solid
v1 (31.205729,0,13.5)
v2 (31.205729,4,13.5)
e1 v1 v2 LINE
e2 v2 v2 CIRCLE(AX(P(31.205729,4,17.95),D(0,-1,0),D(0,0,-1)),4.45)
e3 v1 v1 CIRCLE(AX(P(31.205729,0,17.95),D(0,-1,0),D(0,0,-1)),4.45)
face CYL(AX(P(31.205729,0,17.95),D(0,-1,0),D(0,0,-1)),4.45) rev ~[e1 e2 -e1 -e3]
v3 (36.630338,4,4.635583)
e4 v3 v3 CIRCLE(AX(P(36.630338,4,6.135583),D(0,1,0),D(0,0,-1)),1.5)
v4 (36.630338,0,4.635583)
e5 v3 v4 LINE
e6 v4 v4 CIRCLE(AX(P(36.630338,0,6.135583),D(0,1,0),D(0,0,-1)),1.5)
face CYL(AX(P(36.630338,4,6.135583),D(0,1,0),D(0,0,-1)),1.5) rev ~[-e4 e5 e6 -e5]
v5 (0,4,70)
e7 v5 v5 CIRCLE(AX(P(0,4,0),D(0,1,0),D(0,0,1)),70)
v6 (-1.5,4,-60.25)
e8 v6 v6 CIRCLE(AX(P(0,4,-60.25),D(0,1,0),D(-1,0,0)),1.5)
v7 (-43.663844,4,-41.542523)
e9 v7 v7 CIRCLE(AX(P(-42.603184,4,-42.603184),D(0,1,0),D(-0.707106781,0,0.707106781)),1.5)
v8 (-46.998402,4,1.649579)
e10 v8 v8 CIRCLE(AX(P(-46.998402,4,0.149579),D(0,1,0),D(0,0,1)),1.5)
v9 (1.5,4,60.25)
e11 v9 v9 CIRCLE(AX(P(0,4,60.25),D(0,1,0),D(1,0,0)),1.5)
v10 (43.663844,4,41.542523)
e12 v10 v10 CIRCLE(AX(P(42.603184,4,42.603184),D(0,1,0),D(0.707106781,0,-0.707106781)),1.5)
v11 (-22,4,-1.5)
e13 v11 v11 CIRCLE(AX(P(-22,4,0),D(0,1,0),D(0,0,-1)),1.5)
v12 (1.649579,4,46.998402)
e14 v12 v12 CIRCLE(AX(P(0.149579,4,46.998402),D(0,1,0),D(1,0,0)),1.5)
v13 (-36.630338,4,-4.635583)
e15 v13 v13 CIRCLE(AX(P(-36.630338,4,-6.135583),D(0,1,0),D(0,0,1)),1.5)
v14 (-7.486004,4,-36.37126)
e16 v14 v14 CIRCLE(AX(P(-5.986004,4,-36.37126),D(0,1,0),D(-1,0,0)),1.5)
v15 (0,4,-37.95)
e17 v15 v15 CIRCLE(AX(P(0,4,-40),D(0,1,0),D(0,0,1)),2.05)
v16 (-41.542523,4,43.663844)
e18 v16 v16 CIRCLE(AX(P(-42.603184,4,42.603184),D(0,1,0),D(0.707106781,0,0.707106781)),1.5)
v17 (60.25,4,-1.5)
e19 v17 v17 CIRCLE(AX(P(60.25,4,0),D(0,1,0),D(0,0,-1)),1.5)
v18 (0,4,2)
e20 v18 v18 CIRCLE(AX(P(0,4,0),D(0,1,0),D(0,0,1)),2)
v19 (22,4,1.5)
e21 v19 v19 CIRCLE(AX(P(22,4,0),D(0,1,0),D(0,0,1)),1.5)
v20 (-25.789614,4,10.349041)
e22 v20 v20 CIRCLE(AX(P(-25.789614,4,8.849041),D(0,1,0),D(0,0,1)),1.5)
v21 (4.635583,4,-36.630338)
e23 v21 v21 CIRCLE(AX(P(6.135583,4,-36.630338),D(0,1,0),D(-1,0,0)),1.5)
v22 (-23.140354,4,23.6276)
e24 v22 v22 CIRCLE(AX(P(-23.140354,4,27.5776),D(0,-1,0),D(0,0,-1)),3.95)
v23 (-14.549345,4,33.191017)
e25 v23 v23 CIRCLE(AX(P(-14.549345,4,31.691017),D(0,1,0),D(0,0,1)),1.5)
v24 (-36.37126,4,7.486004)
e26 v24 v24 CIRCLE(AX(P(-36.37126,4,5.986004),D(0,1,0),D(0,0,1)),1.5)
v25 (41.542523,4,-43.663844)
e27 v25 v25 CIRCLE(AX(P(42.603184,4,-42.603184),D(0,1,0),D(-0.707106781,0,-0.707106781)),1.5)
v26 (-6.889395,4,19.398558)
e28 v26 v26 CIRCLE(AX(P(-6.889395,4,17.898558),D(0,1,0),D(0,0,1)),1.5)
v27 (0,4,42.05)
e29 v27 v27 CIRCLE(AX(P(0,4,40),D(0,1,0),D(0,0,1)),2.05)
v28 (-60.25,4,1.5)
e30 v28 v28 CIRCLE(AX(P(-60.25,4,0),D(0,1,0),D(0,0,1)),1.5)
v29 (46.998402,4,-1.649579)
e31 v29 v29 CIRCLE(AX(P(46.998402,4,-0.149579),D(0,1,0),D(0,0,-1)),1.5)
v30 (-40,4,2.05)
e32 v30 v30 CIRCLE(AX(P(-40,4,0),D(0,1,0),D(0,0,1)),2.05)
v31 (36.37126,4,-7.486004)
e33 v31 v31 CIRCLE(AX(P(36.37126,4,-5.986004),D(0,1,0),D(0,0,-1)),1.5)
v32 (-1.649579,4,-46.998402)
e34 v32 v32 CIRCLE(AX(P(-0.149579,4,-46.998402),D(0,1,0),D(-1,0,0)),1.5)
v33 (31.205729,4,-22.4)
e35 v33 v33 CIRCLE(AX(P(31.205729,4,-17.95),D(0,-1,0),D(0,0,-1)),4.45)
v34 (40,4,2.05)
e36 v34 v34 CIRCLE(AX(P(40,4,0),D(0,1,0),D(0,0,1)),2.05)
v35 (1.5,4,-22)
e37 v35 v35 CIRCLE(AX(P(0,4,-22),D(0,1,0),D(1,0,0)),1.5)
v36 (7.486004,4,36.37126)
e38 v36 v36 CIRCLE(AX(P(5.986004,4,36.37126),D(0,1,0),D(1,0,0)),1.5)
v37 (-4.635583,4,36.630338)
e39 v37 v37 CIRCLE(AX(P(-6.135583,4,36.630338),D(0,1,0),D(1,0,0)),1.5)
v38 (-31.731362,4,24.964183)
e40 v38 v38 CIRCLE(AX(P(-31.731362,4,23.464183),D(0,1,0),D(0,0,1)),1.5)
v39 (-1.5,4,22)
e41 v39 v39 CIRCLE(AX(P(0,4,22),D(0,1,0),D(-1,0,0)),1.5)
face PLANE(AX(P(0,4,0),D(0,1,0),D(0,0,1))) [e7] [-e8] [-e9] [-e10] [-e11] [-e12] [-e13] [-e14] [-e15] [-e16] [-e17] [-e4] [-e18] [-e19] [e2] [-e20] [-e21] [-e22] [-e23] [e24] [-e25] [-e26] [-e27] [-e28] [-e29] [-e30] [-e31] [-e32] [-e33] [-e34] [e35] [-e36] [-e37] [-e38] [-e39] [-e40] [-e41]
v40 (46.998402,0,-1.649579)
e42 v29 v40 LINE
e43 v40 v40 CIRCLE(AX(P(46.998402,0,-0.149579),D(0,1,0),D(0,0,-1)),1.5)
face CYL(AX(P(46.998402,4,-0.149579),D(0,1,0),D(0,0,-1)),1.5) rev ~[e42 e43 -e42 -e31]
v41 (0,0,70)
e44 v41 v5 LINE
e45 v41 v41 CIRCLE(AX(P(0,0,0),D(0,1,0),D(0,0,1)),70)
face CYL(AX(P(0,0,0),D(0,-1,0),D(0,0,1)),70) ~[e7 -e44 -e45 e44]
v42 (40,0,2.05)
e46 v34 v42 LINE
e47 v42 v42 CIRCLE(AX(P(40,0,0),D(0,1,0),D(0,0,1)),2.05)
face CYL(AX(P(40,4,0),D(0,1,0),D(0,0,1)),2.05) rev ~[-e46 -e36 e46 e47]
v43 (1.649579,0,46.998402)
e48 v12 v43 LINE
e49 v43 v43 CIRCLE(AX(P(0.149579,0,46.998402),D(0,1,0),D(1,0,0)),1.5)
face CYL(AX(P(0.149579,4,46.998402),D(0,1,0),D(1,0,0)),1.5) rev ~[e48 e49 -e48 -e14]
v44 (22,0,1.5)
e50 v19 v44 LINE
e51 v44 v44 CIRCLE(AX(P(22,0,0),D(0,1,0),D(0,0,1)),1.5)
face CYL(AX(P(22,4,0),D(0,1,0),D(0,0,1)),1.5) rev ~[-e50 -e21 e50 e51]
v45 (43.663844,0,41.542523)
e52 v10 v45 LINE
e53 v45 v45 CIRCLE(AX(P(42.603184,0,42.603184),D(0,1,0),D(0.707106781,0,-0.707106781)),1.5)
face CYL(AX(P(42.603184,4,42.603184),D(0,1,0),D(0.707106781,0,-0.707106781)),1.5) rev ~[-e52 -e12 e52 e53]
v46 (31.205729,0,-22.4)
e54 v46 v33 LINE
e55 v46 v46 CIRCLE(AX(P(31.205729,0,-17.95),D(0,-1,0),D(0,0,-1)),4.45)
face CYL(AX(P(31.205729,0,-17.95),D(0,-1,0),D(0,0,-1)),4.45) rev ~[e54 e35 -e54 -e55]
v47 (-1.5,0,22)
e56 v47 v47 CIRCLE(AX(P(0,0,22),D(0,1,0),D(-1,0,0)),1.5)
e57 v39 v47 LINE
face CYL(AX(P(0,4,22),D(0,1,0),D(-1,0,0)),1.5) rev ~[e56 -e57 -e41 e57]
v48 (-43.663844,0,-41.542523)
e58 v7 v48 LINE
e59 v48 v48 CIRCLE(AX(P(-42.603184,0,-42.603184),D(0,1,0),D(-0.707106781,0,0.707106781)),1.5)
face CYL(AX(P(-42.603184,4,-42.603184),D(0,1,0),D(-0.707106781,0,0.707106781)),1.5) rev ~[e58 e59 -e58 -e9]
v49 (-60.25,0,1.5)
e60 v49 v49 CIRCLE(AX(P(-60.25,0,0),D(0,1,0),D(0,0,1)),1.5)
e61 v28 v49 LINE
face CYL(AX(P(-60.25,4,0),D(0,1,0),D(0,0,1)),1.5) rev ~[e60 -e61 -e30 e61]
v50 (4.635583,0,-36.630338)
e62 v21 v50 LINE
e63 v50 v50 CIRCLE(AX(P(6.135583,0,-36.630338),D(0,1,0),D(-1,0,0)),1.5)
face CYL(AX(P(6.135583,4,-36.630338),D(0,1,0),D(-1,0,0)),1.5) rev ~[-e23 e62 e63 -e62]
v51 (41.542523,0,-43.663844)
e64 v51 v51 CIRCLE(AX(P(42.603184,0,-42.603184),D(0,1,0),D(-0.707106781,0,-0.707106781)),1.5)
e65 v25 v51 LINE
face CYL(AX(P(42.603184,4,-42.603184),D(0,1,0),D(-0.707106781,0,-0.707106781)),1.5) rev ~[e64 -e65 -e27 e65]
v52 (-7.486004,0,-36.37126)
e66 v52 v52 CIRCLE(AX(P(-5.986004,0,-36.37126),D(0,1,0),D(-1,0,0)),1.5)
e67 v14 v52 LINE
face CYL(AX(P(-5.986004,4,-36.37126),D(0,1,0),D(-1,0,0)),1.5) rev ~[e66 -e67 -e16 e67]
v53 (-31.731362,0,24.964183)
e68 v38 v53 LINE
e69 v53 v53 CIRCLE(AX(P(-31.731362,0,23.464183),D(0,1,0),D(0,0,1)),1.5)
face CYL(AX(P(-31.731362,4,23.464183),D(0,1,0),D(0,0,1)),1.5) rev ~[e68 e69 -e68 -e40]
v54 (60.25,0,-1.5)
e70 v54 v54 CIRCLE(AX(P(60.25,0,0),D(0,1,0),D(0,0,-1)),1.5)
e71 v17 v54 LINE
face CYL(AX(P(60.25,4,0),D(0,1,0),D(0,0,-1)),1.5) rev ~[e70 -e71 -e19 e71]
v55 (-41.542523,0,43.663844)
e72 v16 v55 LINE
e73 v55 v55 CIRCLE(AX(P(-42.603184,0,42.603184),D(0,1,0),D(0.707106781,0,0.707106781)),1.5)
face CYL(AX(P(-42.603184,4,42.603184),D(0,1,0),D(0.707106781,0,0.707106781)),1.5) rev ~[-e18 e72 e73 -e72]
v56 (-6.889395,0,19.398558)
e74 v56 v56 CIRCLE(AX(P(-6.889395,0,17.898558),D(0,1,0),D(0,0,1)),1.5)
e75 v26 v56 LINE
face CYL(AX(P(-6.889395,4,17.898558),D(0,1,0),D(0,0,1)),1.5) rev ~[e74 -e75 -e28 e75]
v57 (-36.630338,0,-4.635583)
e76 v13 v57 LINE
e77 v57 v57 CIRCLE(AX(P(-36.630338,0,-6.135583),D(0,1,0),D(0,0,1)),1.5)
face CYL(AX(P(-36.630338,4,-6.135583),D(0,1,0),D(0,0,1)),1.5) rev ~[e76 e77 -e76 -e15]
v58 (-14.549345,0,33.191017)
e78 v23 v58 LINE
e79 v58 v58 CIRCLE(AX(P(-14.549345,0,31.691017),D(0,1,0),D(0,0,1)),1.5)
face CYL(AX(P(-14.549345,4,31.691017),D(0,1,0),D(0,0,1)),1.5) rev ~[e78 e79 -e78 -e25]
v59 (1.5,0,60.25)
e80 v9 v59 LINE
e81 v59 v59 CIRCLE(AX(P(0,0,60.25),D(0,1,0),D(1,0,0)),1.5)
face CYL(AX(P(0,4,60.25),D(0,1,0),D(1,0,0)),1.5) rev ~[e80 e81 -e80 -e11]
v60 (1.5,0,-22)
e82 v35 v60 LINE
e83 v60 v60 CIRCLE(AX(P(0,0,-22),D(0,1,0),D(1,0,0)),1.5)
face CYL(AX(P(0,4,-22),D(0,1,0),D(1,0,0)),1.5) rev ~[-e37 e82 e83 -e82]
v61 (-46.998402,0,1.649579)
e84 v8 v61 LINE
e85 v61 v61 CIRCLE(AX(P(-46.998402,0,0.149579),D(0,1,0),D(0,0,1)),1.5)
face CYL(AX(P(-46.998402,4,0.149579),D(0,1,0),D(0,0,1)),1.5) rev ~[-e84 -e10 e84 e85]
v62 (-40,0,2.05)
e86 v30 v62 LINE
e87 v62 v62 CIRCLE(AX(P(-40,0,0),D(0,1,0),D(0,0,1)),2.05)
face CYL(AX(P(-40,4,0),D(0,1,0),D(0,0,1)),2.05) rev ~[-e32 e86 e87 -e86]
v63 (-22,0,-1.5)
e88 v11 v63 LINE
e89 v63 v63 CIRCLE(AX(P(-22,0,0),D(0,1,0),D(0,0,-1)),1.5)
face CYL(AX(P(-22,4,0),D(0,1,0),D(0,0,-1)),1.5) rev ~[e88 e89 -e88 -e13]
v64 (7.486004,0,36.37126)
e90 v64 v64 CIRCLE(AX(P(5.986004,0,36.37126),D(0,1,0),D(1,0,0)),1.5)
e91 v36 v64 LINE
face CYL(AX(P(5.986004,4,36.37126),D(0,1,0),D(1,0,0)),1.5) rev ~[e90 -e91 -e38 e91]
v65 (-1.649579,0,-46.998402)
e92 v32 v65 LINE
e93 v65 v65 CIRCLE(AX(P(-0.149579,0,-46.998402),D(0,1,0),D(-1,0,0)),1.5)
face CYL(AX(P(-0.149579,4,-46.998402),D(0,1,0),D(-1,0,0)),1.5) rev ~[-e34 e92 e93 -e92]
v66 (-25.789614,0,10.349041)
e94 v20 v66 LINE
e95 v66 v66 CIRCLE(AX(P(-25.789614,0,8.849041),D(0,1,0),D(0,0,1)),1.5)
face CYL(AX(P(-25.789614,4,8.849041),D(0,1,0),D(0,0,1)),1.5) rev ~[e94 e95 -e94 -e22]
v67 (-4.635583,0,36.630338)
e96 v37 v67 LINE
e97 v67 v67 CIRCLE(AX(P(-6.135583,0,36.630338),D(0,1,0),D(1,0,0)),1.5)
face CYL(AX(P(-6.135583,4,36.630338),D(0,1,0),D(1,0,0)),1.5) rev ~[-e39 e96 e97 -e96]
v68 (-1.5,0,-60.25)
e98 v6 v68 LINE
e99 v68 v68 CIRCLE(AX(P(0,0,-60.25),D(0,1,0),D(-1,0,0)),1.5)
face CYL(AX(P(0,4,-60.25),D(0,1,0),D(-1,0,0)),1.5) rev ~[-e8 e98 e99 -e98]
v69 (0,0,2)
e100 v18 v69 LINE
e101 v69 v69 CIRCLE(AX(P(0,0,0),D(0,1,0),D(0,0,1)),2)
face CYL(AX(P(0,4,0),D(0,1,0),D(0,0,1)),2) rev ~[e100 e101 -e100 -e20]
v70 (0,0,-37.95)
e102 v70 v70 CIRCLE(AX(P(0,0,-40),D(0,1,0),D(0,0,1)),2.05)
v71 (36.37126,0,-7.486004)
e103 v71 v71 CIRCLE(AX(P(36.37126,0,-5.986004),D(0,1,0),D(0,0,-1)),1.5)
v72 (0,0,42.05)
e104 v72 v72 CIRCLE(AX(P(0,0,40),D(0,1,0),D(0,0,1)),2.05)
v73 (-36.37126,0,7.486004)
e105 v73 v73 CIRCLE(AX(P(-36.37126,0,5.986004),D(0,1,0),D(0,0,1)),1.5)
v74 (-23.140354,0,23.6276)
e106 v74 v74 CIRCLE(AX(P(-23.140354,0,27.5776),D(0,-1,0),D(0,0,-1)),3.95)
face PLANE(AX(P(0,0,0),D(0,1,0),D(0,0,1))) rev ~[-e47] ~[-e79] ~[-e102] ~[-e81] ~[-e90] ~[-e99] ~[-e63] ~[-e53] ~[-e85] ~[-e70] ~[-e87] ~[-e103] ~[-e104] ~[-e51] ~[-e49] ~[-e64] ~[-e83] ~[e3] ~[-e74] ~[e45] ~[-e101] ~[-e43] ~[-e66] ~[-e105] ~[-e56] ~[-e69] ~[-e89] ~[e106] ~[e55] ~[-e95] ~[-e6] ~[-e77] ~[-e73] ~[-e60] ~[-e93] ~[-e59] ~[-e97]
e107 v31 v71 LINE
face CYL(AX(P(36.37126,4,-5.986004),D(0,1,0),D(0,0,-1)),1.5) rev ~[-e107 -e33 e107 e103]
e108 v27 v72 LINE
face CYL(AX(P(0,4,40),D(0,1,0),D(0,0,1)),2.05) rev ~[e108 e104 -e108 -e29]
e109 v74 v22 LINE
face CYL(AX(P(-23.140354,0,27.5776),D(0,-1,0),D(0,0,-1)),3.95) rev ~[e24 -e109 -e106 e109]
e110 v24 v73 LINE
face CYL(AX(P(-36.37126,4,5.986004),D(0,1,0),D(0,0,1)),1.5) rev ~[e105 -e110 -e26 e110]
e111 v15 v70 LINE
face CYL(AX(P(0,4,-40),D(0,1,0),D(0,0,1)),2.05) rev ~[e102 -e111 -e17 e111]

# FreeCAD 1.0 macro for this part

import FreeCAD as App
import Part
import Sketcher

V = App.Vector
Q = App.Units.Quantity

doc = App.newDocument("Part")
params = doc.addObject("Spreadsheet::Sheet", "Params")
for row, (alias, value) in enumerate([
    ("sketch1_diameter", "140 mm"),
    ("pad1_length", "4 mm"),
    ("sketch2_diameter", "4 mm"),
    ("sketch3_diameter", "3 mm"),
    ("sketch4_diameter", "4.1 mm"),
    ("sketch5_diameter", "3 mm"),
    ("sketch6_diameter", "3 mm"),
    ("sketch7_diameter", "8.9 mm"),
    ("sketch7_diameter2", "7.9 mm"),
    ("sketch8_diameter", "3 mm"),
], start=1):
    params.set(f"A{row}", alias)
    params.set(f"B{row}", "=" + value)
    params.setAlias(f"B{row}", alias)

body = doc.addObject("PartDesign::Body", "Body")

# Sketch on XZ plane
sketch1 = doc.addObject("Sketcher::SketchObject", "Sketch")
body.addObject(sketch1)
sketch1.AttachmentSupport = (doc.XZ_Plane, [""])
sketch1.MapMode = "FlatFace"
sketch1.addGeometry(Part.Circle(V(0, 0, 0), V(0, 0, 1), 70), False)
sketch1.addConstraint([
    Sketcher.Constraint("Coincident", 0, 3, -1, 1),
    Sketcher.Constraint("Diameter", 0, Q("140 mm")),
])
sketch1.setExpression("Constraints[1]", "Params.sketch1_diameter")
pad1 = doc.addObject("PartDesign::Pad", "Pad")
body.addObject(pad1)
pad1.Profile = sketch1
pad1.setExpression("Length", "Params.pad1_length")
pad1.Reversed = True

# Sketch on XZ plane
sketch2 = doc.addObject("Sketcher::SketchObject", "Sketch001")
body.addObject(sketch2)
sketch2.AttachmentSupport = (doc.XZ_Plane, [""])
sketch2.MapMode = "FlatFace"
sketch2.AttachmentOffset = App.Placement(V(0, 0, -4), App.Rotation())
sketch2.addGeometry(Part.Circle(V(0, 0, 0), V(0, 0, 1), 2), False)
sketch2.addConstraint([
    Sketcher.Constraint("Coincident", 0, 3, -1, 1),
    Sketcher.Constraint("Diameter", 0, Q("4 mm")),
])
sketch2.setExpression("Constraints[1]", "Params.sketch2_diameter")
pocket1 = doc.addObject("PartDesign::Pocket", "Pocket")
body.addObject(pocket1)
pocket1.Profile = sketch2
pocket1.Type = "ThroughAll"
pocket1.Reversed = True

# Sketch on XZ plane
sketch3 = doc.addObject("Sketcher::SketchObject", "Sketch002")
body.addObject(sketch3)
sketch3.AttachmentSupport = (doc.XZ_Plane, [""])
sketch3.MapMode = "FlatFace"
sketch3.AttachmentOffset = App.Placement(V(0, 0, -4), App.Rotation())
sketch3.addGeometry(Part.Circle(V(-60.2, 0, 0), V(0, 0, 1), 1.5), False)
sketch3.addConstraint([
    Sketcher.Constraint("PointOnObject", 0, 3, -1),
    Sketcher.Constraint("Diameter", 0, Q("3 mm")),
    Sketcher.Constraint("DistanceX", 0, 3, -1, 1, Q("60.25 mm")),
])
sketch3.setExpression("Constraints[1]", "Params.sketch3_diameter")
pocket2 = doc.addObject("PartDesign::Pocket", "Pocket001")
body.addObject(pocket2)
pocket2.Profile = sketch3
pocket2.Type = "ThroughAll"
pocket2.Reversed = True
doc.recompute()

polarpattern = doc.addObject("PartDesign::PolarPattern", "PolarPattern")
body.addObject(polarpattern)
polarpattern.Originals = [pocket2]
polarpattern.Axis = (doc.Y_Axis, [""])
polarpattern.Angle = 360
polarpattern.Occurrences = 8
body.Tip = polarpattern

# Sketch on XZ plane
sketch4 = doc.addObject("Sketcher::SketchObject", "Sketch003")
body.addObject(sketch4)
sketch4.AttachmentSupport = (doc.XZ_Plane, [""])
sketch4.MapMode = "FlatFace"
sketch4.AttachmentOffset = App.Placement(V(0, 0, -4), App.Rotation())
sketch4.addGeometry([
    Part.Circle(V(0, -40, 0), V(0, 0, 1), 2),
    Part.Circle(V(-40, 0, 0), V(0, 0, 1), 2),
    Part.Circle(V(40, 0, 0), V(0, 0, 1), 2),
    Part.Circle(V(0, 40, 0), V(0, 0, 1), 2),
], False)
sketch4.addConstraint([
    Sketcher.Constraint("Equal", 0, 1),
    Sketcher.Constraint("Equal", 1, 2),
    Sketcher.Constraint("Equal", 2, 3),
    Sketcher.Constraint("Symmetric", 1, 3, 2, 3, -1, 1),
    Sketcher.Constraint("Symmetric", 0, 3, 3, 3, -1, 1),
    Sketcher.Constraint("PointOnObject", 0, 3, -2),
    Sketcher.Constraint("PointOnObject", 1, 3, -1),
    Sketcher.Constraint("Diameter", 0, Q("4.1 mm")),
    Sketcher.Constraint("DistanceY", 0, 3, -1, 1, Q("40 mm")),
    Sketcher.Constraint("DistanceX", 1, 3, -1, 1, Q("40 mm")),
])
sketch4.setExpression("Constraints[7]", "Params.sketch4_diameter")
pocket3 = doc.addObject("PartDesign::Pocket", "Pocket002")
body.addObject(pocket3)
pocket3.Profile = sketch4
pocket3.Type = "ThroughAll"
pocket3.Reversed = True

# Sketch on XZ plane
sketch5 = doc.addObject("Sketcher::SketchObject", "Sketch004")
body.addObject(sketch5)
sketch5.AttachmentSupport = (doc.XZ_Plane, [""])
sketch5.MapMode = "FlatFace"
sketch5.AttachmentOffset = App.Placement(V(0, 0, -4), App.Rotation())
sketch5.addGeometry([
    Part.Circle(V(-36.4, 6, 0), V(0, 0, 1), 1.5),
    Part.Circle(V(-47, 0.1, 0), V(0, 0, 1), 1.5),
    Part.Circle(V(-36.6, -6.1, 0), V(0, 0, 1), 1.5),
], False)
sketch5.addConstraint([
    Sketcher.Constraint("Equal", 0, 1),
    Sketcher.Constraint("Equal", 1, 2),
    Sketcher.Constraint("Diameter", 0, Q("3 mm")),
    Sketcher.Constraint("DistanceX", 1, 3, -1, 1, Q("46.998402 mm")),
    Sketcher.Constraint("DistanceX", 0, 3, -1, 1, Q("36.37126 mm")),
    Sketcher.Constraint("DistanceY", -1, 1, 1, 3, Q("0.149579 mm")),
    Sketcher.Constraint("DistanceX", 2, 3, -1, 1, Q("36.630338 mm")),
    Sketcher.Constraint("DistanceY", -1, 1, 0, 3, Q("5.986004 mm")),
    Sketcher.Constraint("DistanceY", 2, 3, -1, 1, Q("6.135583 mm")),
])
sketch5.setExpression("Constraints[2]", "Params.sketch5_diameter")
pocket4 = doc.addObject("PartDesign::Pocket", "Pocket003")
body.addObject(pocket4)
pocket4.Profile = sketch5
pocket4.Type = "ThroughAll"
pocket4.Reversed = True
doc.recompute()

polarpattern2 = doc.addObject("PartDesign::PolarPattern", "PolarPattern001")
body.addObject(polarpattern2)
polarpattern2.Originals = [pocket4]
polarpattern2.Axis = (doc.Y_Axis, [""])
polarpattern2.Angle = 360
polarpattern2.Occurrences = 4
body.Tip = polarpattern2

# Sketch on XZ plane
sketch6 = doc.addObject("Sketcher::SketchObject", "Sketch005")
body.addObject(sketch6)
sketch6.AttachmentSupport = (doc.XZ_Plane, [""])
sketch6.MapMode = "FlatFace"
sketch6.AttachmentOffset = App.Placement(V(0, 0, -4), App.Rotation())
sketch6.addGeometry(Part.Circle(V(22, 0, 0), V(0, 0, 1), 1.5), False)
sketch6.addConstraint([
    Sketcher.Constraint("PointOnObject", 0, 3, -1),
    Sketcher.Constraint("Diameter", 0, Q("3 mm")),
    Sketcher.Constraint("DistanceX", -1, 1, 0, 3, Q("22 mm")),
])
sketch6.setExpression("Constraints[1]", "Params.sketch6_diameter")
pocket5 = doc.addObject("PartDesign::Pocket", "Pocket004")
body.addObject(pocket5)
pocket5.Profile = sketch6
pocket5.Type = "ThroughAll"
pocket5.Reversed = True
doc.recompute()

polarpattern3 = doc.addObject("PartDesign::PolarPattern", "PolarPattern002")
body.addObject(polarpattern3)
polarpattern3.Originals = [pocket5]
polarpattern3.Axis = (doc.Y_Axis, [""])
polarpattern3.Angle = 360
polarpattern3.Occurrences = 4
body.Tip = polarpattern3

# Sketch on XZ plane
sketch7 = doc.addObject("Sketcher::SketchObject", "Sketch006")
body.addObject(sketch7)
sketch7.AttachmentSupport = (doc.XZ_Plane, [""])
sketch7.MapMode = "FlatFace"
sketch7.addGeometry([
    Part.Circle(V(31.2, 17.9, 0), V(0, 0, 1), 4.5),
    Part.Circle(V(31.2, -17.9, 0), V(0, 0, 1), 4.5),
    Part.Circle(V(-23.1, 27.6, 0), V(0, 0, 1), 4),
], False)
sketch7.addConstraint([
    Sketcher.Constraint("Equal", 0, 1),
    Sketcher.Constraint("Symmetric", 0, 3, 1, 3, -1),
    Sketcher.Constraint("Diameter", 0, Q("8.9 mm")),
    Sketcher.Constraint("Diameter", 2, Q("7.9 mm")),
    Sketcher.Constraint("DistanceY", 1, 3, 0, 3, Q("35.9 mm")),
    Sketcher.Constraint("DistanceY", -1, 1, 2, 3, Q("27.5776 mm")),
    Sketcher.Constraint("DistanceX", -1, 1, 0, 3, Q("31.205729 mm")),
    Sketcher.Constraint("DistanceX", 2, 3, -1, 1, Q("23.140354 mm")),
])
sketch7.setExpression("Constraints[2]", "Params.sketch7_diameter")
sketch7.setExpression("Constraints[3]", "Params.sketch7_diameter2")
pocket6 = doc.addObject("PartDesign::Pocket", "Pocket005")
body.addObject(pocket6)
pocket6.Profile = sketch7
pocket6.Type = "ThroughAll"

# Sketch on XZ plane
sketch8 = doc.addObject("Sketcher::SketchObject", "Sketch007")
body.addObject(sketch8)
sketch8.AttachmentSupport = (doc.XZ_Plane, [""])
sketch8.MapMode = "FlatFace"
sketch8.AttachmentOffset = App.Placement(V(0, 0, -4), App.Rotation())
sketch8.addGeometry([
    Part.Circle(V(-25.8, 8.8, 0), V(0, 0, 1), 1.5),
    Part.Circle(V(-6.9, 17.9, 0), V(0, 0, 1), 1.5),
    Part.Circle(V(-31.7, 23.5, 0), V(0, 0, 1), 1.5),
    Part.Circle(V(-14.5, 31.7, 0), V(0, 0, 1), 1.5),
], False)
sketch8.addConstraint([
    Sketcher.Constraint("Equal", 0, 1),
    Sketcher.Constraint("Equal", 1, 2),
    Sketcher.Constraint("Equal", 2, 3),
    Sketcher.Constraint("Diameter", 0, Q("3 mm")),
    Sketcher.Constraint("DistanceY", -1, 1, 0, 3, Q("8.849041 mm")),
    Sketcher.Constraint("DistanceX", 0, 3, 1, 3, Q("18.900219 mm")),
    Sketcher.Constraint("DistanceX", 2, 3, 0, 3, Q("5.941748 mm")),
    Sketcher.Constraint("DistanceX", 3, 3, 1, 3, Q("7.65995 mm")),
    Sketcher.Constraint("DistanceY", 1, 3, 3, 3, Q("13.792459 mm")),
    Sketcher.Constraint("DistanceX", 0, 3, -1, 1, Q("25.789614 mm")),
    Sketcher.Constraint("DistanceY", -1, 1, 1, 3, Q("17.898558 mm")),
    Sketcher.Constraint("DistanceY", -1, 1, 2, 3, Q("23.464183 mm")),
])
sketch8.setExpression("Constraints[3]", "Params.sketch8_diameter")
pocket7 = doc.addObject("PartDesign::Pocket", "Pocket006")
body.addObject(pocket7)
pocket7.Profile = sketch8
pocket7.Type = "ThroughAll"
pocket7.Reversed = True

doc.recompute()
